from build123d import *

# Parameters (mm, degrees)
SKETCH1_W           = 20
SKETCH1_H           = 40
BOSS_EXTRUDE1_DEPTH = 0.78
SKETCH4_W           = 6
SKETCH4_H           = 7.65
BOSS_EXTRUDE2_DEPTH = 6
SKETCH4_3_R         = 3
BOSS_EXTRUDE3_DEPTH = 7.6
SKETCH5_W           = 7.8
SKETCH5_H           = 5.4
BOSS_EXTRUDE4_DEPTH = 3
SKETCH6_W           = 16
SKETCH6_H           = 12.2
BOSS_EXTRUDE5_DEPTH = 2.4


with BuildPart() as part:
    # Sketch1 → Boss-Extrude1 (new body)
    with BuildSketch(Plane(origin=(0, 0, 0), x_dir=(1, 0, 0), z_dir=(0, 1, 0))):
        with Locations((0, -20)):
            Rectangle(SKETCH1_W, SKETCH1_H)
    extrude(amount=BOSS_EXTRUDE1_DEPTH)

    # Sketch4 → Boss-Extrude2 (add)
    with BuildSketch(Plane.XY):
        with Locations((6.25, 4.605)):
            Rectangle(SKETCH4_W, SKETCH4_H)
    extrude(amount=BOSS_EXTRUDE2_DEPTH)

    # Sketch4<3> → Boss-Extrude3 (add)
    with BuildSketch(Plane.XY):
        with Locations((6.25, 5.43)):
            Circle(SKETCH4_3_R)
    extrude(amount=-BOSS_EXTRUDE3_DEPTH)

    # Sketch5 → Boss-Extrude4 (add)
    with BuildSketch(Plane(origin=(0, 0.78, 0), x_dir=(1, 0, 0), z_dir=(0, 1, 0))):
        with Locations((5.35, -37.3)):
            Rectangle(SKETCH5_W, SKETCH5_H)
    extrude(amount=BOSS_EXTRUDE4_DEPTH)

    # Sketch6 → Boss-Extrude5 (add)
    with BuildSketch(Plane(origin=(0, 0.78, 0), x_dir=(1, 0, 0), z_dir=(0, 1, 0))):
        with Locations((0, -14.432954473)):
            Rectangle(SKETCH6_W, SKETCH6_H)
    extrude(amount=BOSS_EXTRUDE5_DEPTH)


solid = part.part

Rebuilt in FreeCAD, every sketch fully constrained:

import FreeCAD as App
import Part
import Sketcher

V = App.Vector
Q = App.Units.Quantity


def add_polygon(sketch, points):
    """Adds a closed chain of lines whose ends are joined by coincident constraints."""
    first, n = sketch.GeometryCount, len(points)
    for a, b in zip(points, points[1:] + points[:1]):
        sketch.addGeometry(Part.LineSegment(App.Vector(*a, 0), App.Vector(*b, 0)), False)
    for i in range(n):
        sketch.addConstraint(Sketcher.Constraint("Coincident", first + i, 2, first + (i + 1) % n, 1))

doc = App.newDocument("Part")
body = doc.addObject("PartDesign::Body", "Body")

sketch1 = body.newObject("Sketcher::SketchObject", "Sketch")
sketch1.AttachmentSupport = (doc.getObject("XZ_Plane"), [""])
sketch1.MapMode = "FlatFace"
add_polygon(sketch1, [(-10, 0), (-10, 40), (10, 40), (10, 0)])
sketch1.addConstraint([
    Sketcher.Constraint("Vertical", 0),
    Sketcher.Constraint("Horizontal", 1),
    Sketcher.Constraint("Vertical", 2),
    Sketcher.Constraint("Horizontal", 3),
    Sketcher.Constraint("Symmetric", 2, 2, 3, 2, -1, 1),
    Sketcher.Constraint("DistanceX", 1, 1, 1, 2, Q("20 mm")),
    Sketcher.Constraint("DistanceY", 0, 1, 0, 2, Q("40 mm")),
])
pad1 = body.newObject("PartDesign::Pad", "Pad")
pad1.Profile = sketch1
pad1.Length = 0.78
pad1.Reversed = True

sketch2 = body.newObject("Sketcher::SketchObject", "Sketch001")
sketch2.AttachmentSupport = (doc.getObject("XY_Plane"), [""])
sketch2.MapMode = "FlatFace"
add_polygon(sketch2, [(3, 8), (3, 1), (9, 1), (9, 8)])
sketch2.addConstraint([
    Sketcher.Constraint("Vertical", 0),
    Sketcher.Constraint("Horizontal", 1),
    Sketcher.Constraint("Vertical", 2),
    Sketcher.Constraint("Horizontal", 3),
    Sketcher.Constraint("DistanceX", 1, 1, 1, 2, Q("6 mm")),
    Sketcher.Constraint("DistanceY", 0, 2, 0, 1, Q("7.65 mm")),
    Sketcher.Constraint("DistanceX", -1, 1, 0, 2, Q("3.25 mm")),
    Sketcher.Constraint("DistanceY", -1, 1, 0, 2, Q("0.78 mm")),
])
pad2 = body.newObject("PartDesign::Pad", "Pad001")
pad2.Profile = sketch2
pad2.Length = 6

sketch3 = body.newObject("Sketcher::SketchObject", "Sketch002")
sketch3.AttachmentSupport = (doc.getObject("XY_Plane"), [""])
sketch3.MapMode = "FlatFace"
sketch3.addGeometry(Part.Circle(V(6.2, 5.4, 0), V(0, 0, 1), 3), False)
sketch3.addConstraint([
    Sketcher.Constraint("Diameter", 0, Q("6 mm")),
    Sketcher.Constraint("DistanceX", -1, 1, 0, 3, Q("6.25 mm")),
    Sketcher.Constraint("DistanceY", -1, 1, 0, 3, Q("5.43 mm")),
])
pad3 = body.newObject("PartDesign::Pad", "Pad002")
pad3.Profile = sketch3
pad3.Length = 7.6
pad3.Reversed = True

sketch4 = body.newObject("Sketcher::SketchObject", "Sketch003")
sketch4.AttachmentSupport = (doc.getObject("XZ_Plane"), [""])
sketch4.MapMode = "FlatFace"
sketch4.AttachmentOffset = App.Placement(V(0, 0, -0.78), App.Rotation())
add_polygon(sketch4, [(1, 35), (1, 40), (9, 40), (9, 35)])
sketch4.addConstraint([
    Sketcher.Constraint("Vertical", 0),
    Sketcher.Constraint("Horizontal", 1),
    Sketcher.Constraint("Vertical", 2),
    Sketcher.Constraint("Horizontal", 3),
    Sketcher.Constraint("DistanceX", 1, 1, 1, 2, Q("7.8 mm")),
    Sketcher.Constraint("DistanceY", 0, 1, 0, 2, Q("5.4 mm")),
    Sketcher.Constraint("DistanceY", -1, 1, 0, 2, Q("40 mm")),
    Sketcher.Constraint("DistanceX", -1, 1, 0, 2, Q("1.45 mm")),
])
pad4 = body.newObject("PartDesign::Pad", "Pad003")
pad4.Profile = sketch4
pad4.Length = 3
pad4.Reversed = True

sketch5 = body.newObject("Sketcher::SketchObject", "Sketch004")
sketch5.AttachmentSupport = (doc.getObject("XZ_Plane"), [""])
sketch5.MapMode = "FlatFace"
sketch5.AttachmentOffset = App.Placement(V(0, 0, -0.78), App.Rotation())
add_polygon(sketch5, [(-8, 8), (-8, 21), (8, 21), (8, 8)])
sketch5.addConstraint([
    Sketcher.Constraint("Vertical", 0),
    Sketcher.Constraint("Horizontal", 1),
    Sketcher.Constraint("Vertical", 2),
    Sketcher.Constraint("Horizontal", 3),
    Sketcher.Constraint("DistanceX", 1, 1, 1, 2, Q("16 mm")),
    Sketcher.Constraint("DistanceY", 0, 1, 0, 2, Q("12.2 mm")),
    Sketcher.Constraint("DistanceX", 0, 2, -1, 1, Q("8 mm")),
    Sketcher.Constraint("DistanceY", -1, 1, 0, 2, Q("20.532954 mm")),
])
pad5 = body.newObject("PartDesign::Pad", "Pad004")
pad5.Profile = sketch5
pad5.Length = 2.4
pad5.Reversed = True

doc.recompute()
